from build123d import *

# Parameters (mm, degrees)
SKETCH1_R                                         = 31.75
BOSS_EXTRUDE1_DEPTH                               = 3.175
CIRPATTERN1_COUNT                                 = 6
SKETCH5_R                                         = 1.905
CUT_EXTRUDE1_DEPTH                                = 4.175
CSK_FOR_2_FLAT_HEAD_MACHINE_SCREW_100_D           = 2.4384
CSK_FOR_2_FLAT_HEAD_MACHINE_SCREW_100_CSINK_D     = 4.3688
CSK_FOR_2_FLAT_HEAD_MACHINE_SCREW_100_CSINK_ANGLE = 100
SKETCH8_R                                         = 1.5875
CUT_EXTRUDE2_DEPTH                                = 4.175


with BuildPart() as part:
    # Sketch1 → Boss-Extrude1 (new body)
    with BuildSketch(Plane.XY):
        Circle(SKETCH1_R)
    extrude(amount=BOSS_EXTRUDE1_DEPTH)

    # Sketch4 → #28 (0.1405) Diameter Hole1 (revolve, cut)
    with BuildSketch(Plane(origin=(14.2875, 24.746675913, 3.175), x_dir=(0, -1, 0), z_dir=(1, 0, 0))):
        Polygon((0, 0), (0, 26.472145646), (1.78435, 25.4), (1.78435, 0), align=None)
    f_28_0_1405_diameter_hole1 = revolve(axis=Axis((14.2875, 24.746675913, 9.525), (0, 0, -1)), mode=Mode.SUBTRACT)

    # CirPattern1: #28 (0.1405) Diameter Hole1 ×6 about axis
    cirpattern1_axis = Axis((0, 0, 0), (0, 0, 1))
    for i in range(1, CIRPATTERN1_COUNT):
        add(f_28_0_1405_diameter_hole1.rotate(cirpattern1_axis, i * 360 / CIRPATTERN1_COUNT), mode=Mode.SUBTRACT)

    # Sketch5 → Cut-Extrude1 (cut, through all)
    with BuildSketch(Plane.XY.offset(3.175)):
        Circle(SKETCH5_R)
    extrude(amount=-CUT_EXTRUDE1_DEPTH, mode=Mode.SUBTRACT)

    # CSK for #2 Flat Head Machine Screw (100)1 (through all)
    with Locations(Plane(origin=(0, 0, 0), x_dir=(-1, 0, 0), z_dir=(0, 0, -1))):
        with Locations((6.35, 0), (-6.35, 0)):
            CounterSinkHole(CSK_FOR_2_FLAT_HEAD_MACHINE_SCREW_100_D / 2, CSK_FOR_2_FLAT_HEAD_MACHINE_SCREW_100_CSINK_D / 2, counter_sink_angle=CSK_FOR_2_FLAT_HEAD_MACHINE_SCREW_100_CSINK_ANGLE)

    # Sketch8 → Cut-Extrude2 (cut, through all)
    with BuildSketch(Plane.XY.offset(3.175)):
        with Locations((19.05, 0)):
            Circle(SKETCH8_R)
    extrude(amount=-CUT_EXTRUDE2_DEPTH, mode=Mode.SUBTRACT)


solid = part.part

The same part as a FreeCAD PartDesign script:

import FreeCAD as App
import Part
import Sketcher
from FreeCAD import Vector
Q = App.Units.Quantity


def add_polygon(sketch, points):
    """Adds a closed chain of lines whose ends are joined by coincident constraints."""
    first, n = sketch.GeometryCount, len(points)
    for a, b in zip(points, points[1:] + points[:1]):
        sketch.addGeometry(Part.LineSegment(App.Vector(*a, 0), App.Vector(*b, 0)), False)
    for i in range(n):
        sketch.addConstraint(Sketcher.Constraint("Coincident", first + i, 2, first + (i + 1) % n, 1))

doc = App.newDocument("Part")
body = doc.addObject("PartDesign::Body", "Body")

# Sketch on XY plane
sketch1 = body.newObject("Sketcher::SketchObject", "Sketch")
sketch1.AttachmentSupport = (doc.getObject("XY_Plane"), [""])
sketch1.MapMode = "FlatFace"
sketch1.addGeometry(Part.Circle(Vector(0, 0, 0), Vector(0, 0, 1), 32), False)
sketch1.addConstraint([
    Sketcher.Constraint("Coincident", 0, 3, -1, 1),
    Sketcher.Constraint("Diameter", 0, Q("2.5 in")),
])
pad1 = body.newObject("PartDesign::Pad", "Pad")
pad1.Profile = sketch1
pad1.Length = Q("0.125 in")

# Sketch on YZ plane
sketch2 = body.newObject("Sketcher::SketchObject", "Sketch001")
sketch2.AttachmentSupport = (doc.getObject("YZ_Plane"), [""])
sketch2.MapMode = "FlatFace"
sketch2.AttachmentOffset = App.Placement(Vector(0, 0, 0.5625 * 25.4), App.Rotation())
add_polygon(sketch2, [(24.7, -23.3), (24.7, 3.2), (23, 3.2), (23, -22.2)])  # lines 0-3
sketch2.addGeometry(Part.LineSegment(Vector(24.7, 3.2, 0), Vector(24.7, -23.3, 0)), True)  # axis
sketch2.addConstraint([
    Sketcher.Constraint("Vertical", 0),
    Sketcher.Constraint("Horizontal", 1),
    Sketcher.Constraint("Vertical", 2),
    Sketcher.Constraint("Vertical", 4),
    Sketcher.Constraint("Coincident", 4, 1, 0, 2),
    Sketcher.Constraint("Equal", 0, 4),
    Sketcher.Constraint("DistanceY", 2, 2, 2, 1, Q("1 in")),
    Sketcher.Constraint("Angle", 3, Q("-31 deg")),
    Sketcher.Constraint("DistanceY", -1, 1, 0, 2, Q("0.125 in")),
    Sketcher.Constraint("DistanceX", 1, 2, 1, 1, 1.78435),
    Sketcher.Constraint("DistanceX", -1, 1, 0, 2, 24.746676),
])
groove = body.newObject("PartDesign::Groove", "Groove")
groove.Profile = sketch2
groove.ReferenceAxis = (sketch2, ["Axis0"])
groove.Angle = 360
doc.recompute()

polarpattern = body.newObject("PartDesign::PolarPattern", "PolarPattern")
polarpattern.Originals = [groove]
polarpattern.Axis = (doc.getObject("Z_Axis"), [""])
polarpattern.Angle = 360
polarpattern.Occurrences = 6
body.Tip = polarpattern

# Sketch on XY plane
sketch3 = body.newObject("Sketcher::SketchObject", "Sketch002")
sketch3.AttachmentSupport = (doc.getObject("XY_Plane"), [""])
sketch3.MapMode = "FlatFace"
sketch3.AttachmentOffset = App.Placement(Vector(0, 0, 0.125 * 25.4), App.Rotation())
sketch3.addGeometry(Part.Circle(Vector(0, 0, 0), Vector(0, 0, 1), 1.9), False)
sketch3.addConstraint([
    Sketcher.Constraint("Coincident", 0, 3, -1, 1),
    Sketcher.Constraint("Diameter", 0, Q("0.15 in")),
])
pocket1 = body.newObject("PartDesign::Pocket", "Pocket")
pocket1.Profile = sketch3
pocket1.Type = "ThroughAll"

# Sketch on XY plane
sketch4 = body.newObject("Sketcher::SketchObject", "Sketch003")
sketch4.AttachmentSupport = (doc.getObject("XY_Plane"), [""])
sketch4.MapMode = "FlatFace"
sketch4.addGeometry([
    Part.Circle(Vector(-6.3, 0, 0), Vector(0, 0, 1), 1.2),
    Part.Circle(Vector(6.3, 0, 0), Vector(0, 0, 1), 1.2),
], False)
sketch4.addConstraint([
    Sketcher.Constraint("Equal", 0, 1),
    Sketcher.Constraint("Symmetric", 0, 3, 1, 3, -1, 1),
    Sketcher.Constraint("PointOnObject", 0, 3, -1),
    Sketcher.Constraint("Diameter", 0, Q("0.096 in")),
    Sketcher.Constraint("DistanceX", 0, 3, 1, 3, Q("0.5 in")),
])
doc.recompute()
hole = body.newObject("PartDesign::Hole", "Hole")
hole.Profile = sketch4
hole.ThreadType = "None"
hole.Diameter = Q("0.096 in")
hole.DepthType = "ThroughAll"
hole.HoleCutType = "Countersink"
hole.HoleCutDiameter = Q("0.172 in")
hole.HoleCutCountersinkAngle = 100
hole.Reversed = True

# Sketch on XY plane
sketch5 = body.newObject("Sketcher::SketchObject", "Sketch004")
sketch5.AttachmentSupport = (doc.getObject("XY_Plane"), [""])
sketch5.MapMode = "FlatFace"
sketch5.AttachmentOffset = App.Placement(Vector(0, 0, 0.125 * 25.4), App.Rotation())
sketch5.addGeometry(Part.Circle(Vector(19.1, 0, 0), Vector(0, 0, 1), 1.6), False)
sketch5.addConstraint([
    Sketcher.Constraint("PointOnObject", 0, 3, -1),
    Sketcher.Constraint("Diameter", 0, Q("0.125 in")),
    Sketcher.Constraint("DistanceX", -1, 1, 0, 3, Q("0.75 in")),
])
pocket2 = body.newObject("PartDesign::Pocket", "Pocket001")
pocket2.Profile = sketch5
pocket2.Type = "ThroughAll"

doc.recompute()
